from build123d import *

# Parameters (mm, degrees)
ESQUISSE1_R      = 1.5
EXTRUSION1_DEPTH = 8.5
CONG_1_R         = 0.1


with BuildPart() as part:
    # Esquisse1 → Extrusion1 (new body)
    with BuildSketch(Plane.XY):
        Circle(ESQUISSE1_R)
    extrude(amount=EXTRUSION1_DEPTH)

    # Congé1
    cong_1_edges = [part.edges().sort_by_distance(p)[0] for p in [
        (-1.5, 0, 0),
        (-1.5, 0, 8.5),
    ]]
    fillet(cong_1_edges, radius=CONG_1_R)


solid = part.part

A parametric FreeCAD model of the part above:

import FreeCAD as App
import Part
import Sketcher


def edges_at(feature, points):
    """Names of the edges that pass closest to the given points."""
    edges = feature.Shape.Edges
    near = lambda p: min(range(len(edges)), key=lambda i: edges[i].distToShape(Part.Vertex(*p))[0])
    return sorted({f"Edge{near(p) + 1}" for p in points})

doc = App.newDocument("Part")
params = doc.addObject("Spreadsheet::Sheet", "Params")
for row, (alias, value) in enumerate([
    ("sketch1_diameter", "3 mm"),
    ("pad1_length", "8.5 mm"),
    ("fillet_radius", "0.1 mm"),
], start=1):
    params.set(f"A{row}", alias)
    params.set(f"B{row}", "=" + value)
    params.setAlias(f"B{row}", alias)

body = doc.addObject("PartDesign::Body", "Body")

# Sketch on XY plane
sketch1 = body.newObject("Sketcher::SketchObject", "Sketch")
sketch1.AttachmentSupport = (doc.getObject("XY_Plane"), [""])
sketch1.MapMode = "FlatFace"
sketch1.addGeometry(Part.Circle(App.Vector(0, 0, 0), App.Vector(0, 0, 1), 1.5), False)
sketch1.addConstraint(Sketcher.Constraint("Coincident", 0, 3, -1, 1))
sketch1.addConstraint(Sketcher.Constraint("Diameter", 0, 3.0))
sketch1.setExpression("Constraints[1]", "Params.sketch1_diameter")
pad1 = body.newObject("PartDesign::Pad", "Pad")
pad1.Profile = sketch1
pad1.setExpression("Length", "Params.pad1_length")
doc.recompute()

fillet = body.newObject("PartDesign::Fillet", "Fillet")
fillet.Base = (pad1, edges_at(pad1, [(-1.5, 0, 0), (-1.5, 0, 8.5)]))
fillet.setExpression("Radius", "Params.fillet_radius")

doc.recompute()
